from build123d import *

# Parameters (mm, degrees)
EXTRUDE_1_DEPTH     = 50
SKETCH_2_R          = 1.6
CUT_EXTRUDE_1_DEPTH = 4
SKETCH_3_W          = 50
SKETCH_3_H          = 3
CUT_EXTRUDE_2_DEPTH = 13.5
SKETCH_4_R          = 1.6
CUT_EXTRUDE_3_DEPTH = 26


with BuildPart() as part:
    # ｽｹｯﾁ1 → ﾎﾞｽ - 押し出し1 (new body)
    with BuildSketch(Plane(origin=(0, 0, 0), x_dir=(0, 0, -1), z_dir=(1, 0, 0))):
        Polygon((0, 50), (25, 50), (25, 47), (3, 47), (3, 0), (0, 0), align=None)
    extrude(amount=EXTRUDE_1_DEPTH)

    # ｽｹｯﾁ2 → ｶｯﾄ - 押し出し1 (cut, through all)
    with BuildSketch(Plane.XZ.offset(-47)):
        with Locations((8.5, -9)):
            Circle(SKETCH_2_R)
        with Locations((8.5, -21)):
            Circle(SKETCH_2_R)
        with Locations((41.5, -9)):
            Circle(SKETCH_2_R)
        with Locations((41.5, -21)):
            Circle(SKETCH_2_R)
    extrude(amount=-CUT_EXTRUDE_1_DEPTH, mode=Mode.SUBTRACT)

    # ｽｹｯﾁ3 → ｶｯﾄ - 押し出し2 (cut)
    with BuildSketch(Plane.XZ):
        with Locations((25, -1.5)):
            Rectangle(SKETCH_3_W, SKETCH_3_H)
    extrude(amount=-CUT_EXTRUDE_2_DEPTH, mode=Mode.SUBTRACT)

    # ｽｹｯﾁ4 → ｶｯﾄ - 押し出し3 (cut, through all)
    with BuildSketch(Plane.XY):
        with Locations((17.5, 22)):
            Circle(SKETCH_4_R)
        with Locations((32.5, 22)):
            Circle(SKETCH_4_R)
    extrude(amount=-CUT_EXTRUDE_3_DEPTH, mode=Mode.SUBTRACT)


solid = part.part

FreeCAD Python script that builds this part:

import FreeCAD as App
import Part
import Sketcher
Q = App.Units.Quantity


def add_polygon(sketch, points):
    """Adds a closed chain of lines whose ends are joined by coincident constraints."""
    first, n = sketch.GeometryCount, len(points)
    for a, b in zip(points, points[1:] + points[:1]):
        sketch.addGeometry(Part.LineSegment(App.Vector(*a, 0), App.Vector(*b, 0)), False)
    for i in range(n):
        sketch.addConstraint(Sketcher.Constraint("Coincident", first + i, 2, first + (i + 1) % n, 1))

doc = App.newDocument("Part")
body = doc.addObject("PartDesign::Body", "Body")

sketch1 = doc.addObject("Sketcher::SketchObject", "Sketch")
body.addObject(sketch1)
sketch1.AttachmentSupport = (doc.YZ_Plane, [""])
sketch1.MapMode = "FlatFace"
add_polygon(sketch1, [(50, -25), (50, 0), (0, 0), (0, -3), (47, -3), (47, -25)])
sketch1.addConstraint(Sketcher.Constraint("Vertical", 0))
sketch1.addConstraint(Sketcher.Constraint("Horizontal", 1))
sketch1.addConstraint(Sketcher.Constraint("Vertical", 2))
sketch1.addConstraint(Sketcher.Constraint("Horizontal", 3))
sketch1.addConstraint(Sketcher.Constraint("Vertical", 4))
sketch1.addConstraint(Sketcher.Constraint("Horizontal", 5))
sketch1.addConstraint(Sketcher.Constraint("Coincident", 1, 2, -1, 1))
sketch1.addConstraint(Sketcher.Constraint("Equal", 5, 2))
sketch1.addConstraint(Sketcher.Constraint("DistanceX", 1, 2, 1, 1, Q("50 mm")))
sketch1.addConstraint(Sketcher.Constraint("DistanceX", 3, 1, 3, 2, Q("47 mm")))
sketch1.addConstraint(Sketcher.Constraint("DistanceY", 0, 1, 0, 2, Q("25 mm")))
pad1 = doc.addObject("PartDesign::Pad", "Pad")
body.addObject(pad1)
pad1.Profile = sketch1
pad1.Length = 50

sketch2 = doc.addObject("Sketcher::SketchObject", "Sketch001")
body.addObject(sketch2)
sketch2.AttachmentSupport = (doc.XZ_Plane, [""])
sketch2.MapMode = "FlatFace"
sketch2.AttachmentOffset = App.Placement(App.Vector(0, 0, -47), App.Rotation())
sketch2.addGeometry(Part.Circle(App.Vector(8.5, -9, 0), App.Vector(0, 0, 1), 1.6), False)
sketch2.addGeometry(Part.Circle(App.Vector(8.5, -21, 0), App.Vector(0, 0, 1), 1.6), False)
sketch2.addGeometry(Part.Circle(App.Vector(41.5, -9, 0), App.Vector(0, 0, 1), 1.6), False)
sketch2.addGeometry(Part.Circle(App.Vector(41.5, -21, 0), App.Vector(0, 0, 1), 1.6), False)
sketch2.addConstraint(Sketcher.Constraint("Equal", 0, 1))
sketch2.addConstraint(Sketcher.Constraint("Equal", 1, 2))
sketch2.addConstraint(Sketcher.Constraint("Equal", 2, 3))
sketch2.addConstraint(Sketcher.Constraint("Horizontal", 0, 3, 2, 3))
sketch2.addConstraint(Sketcher.Constraint("Horizontal", 1, 3, 3, 3))
sketch2.addConstraint(Sketcher.Constraint("Vertical", 0, 3, 1, 3))
sketch2.addConstraint(Sketcher.Constraint("Vertical", 2, 3, 3, 3))
sketch2.addConstraint(Sketcher.Constraint("Diameter", 0, Q("3.2 mm")))
sketch2.addConstraint(Sketcher.Constraint("DistanceY", 0, 3, -1, 1, Q("9 mm")))
sketch2.addConstraint(Sketcher.Constraint("DistanceY", 1, 3, -1, 1, Q("21 mm")))
sketch2.addConstraint(Sketcher.Constraint("DistanceX", 0, 3, 2, 3, Q("33 mm")))
sketch2.addConstraint(Sketcher.Constraint("DistanceX", -1, 1, 0, 3, Q("8.5 mm")))
pocket1 = doc.addObject("PartDesign::Pocket", "Pocket")
body.addObject(pocket1)
pocket1.Profile = sketch2
pocket1.Type = "ThroughAll"

sketch3 = doc.addObject("Sketcher::SketchObject", "Sketch002")
body.addObject(sketch3)
sketch3.AttachmentSupport = (doc.XZ_Plane, [""])
sketch3.MapMode = "FlatFace"
add_polygon(sketch3, [(0, 0), (0, -3), (50, -3), (50, 0)])
sketch3.addConstraint(Sketcher.Constraint("Vertical", 0))
sketch3.addConstraint(Sketcher.Constraint("Horizontal", 1))
sketch3.addConstraint(Sketcher.Constraint("Vertical", 2))
sketch3.addConstraint(Sketcher.Constraint("Horizontal", 3))
sketch3.addConstraint(Sketcher.Constraint("Coincident", 3, 2, -1, 1))
sketch3.addConstraint(Sketcher.Constraint("DistanceX", 1, 1, 1, 2, Q("50 mm")))
sketch3.addConstraint(Sketcher.Constraint("DistanceY", 0, 2, 0, 1, Q("3 mm")))
pocket2 = doc.addObject("PartDesign::Pocket", "Pocket001")
body.addObject(pocket2)
pocket2.Profile = sketch3
pocket2.Length = 13.5

sketch4 = doc.addObject("Sketcher::SketchObject", "Sketch003")
body.addObject(sketch4)
sketch4.AttachmentSupport = (doc.XY_Plane, [""])
sketch4.MapMode = "FlatFace"
sketch4.addGeometry(Part.Circle(App.Vector(17.5, 22, 0), App.Vector(0, 0, 1), 1.6), False)
sketch4.addGeometry(Part.Circle(App.Vector(32.5, 22, 0), App.Vector(0, 0, 1), 1.6), False)
sketch4.addConstraint(Sketcher.Constraint("Equal", 0, 1))
sketch4.addConstraint(Sketcher.Constraint("Horizontal", 0, 3, 1, 3))
sketch4.addConstraint(Sketcher.Constraint("Diameter", 0, Q("3.2 mm")))
sketch4.addConstraint(Sketcher.Constraint("DistanceY", -1, 1, 0, 3, Q("22 mm")))
sketch4.addConstraint(Sketcher.Constraint("DistanceX", 0, 3, 1, 3, Q("15 mm")))
sketch4.addConstraint(Sketcher.Constraint("DistanceX", -1, 1, 0, 3, Q("17.5 mm")))
pocket3 = doc.addObject("PartDesign::Pocket", "Pocket002")
body.addObject(pocket3)
pocket3.Profile = sketch4
pocket3.Type = "ThroughAll"

doc.recompute()
